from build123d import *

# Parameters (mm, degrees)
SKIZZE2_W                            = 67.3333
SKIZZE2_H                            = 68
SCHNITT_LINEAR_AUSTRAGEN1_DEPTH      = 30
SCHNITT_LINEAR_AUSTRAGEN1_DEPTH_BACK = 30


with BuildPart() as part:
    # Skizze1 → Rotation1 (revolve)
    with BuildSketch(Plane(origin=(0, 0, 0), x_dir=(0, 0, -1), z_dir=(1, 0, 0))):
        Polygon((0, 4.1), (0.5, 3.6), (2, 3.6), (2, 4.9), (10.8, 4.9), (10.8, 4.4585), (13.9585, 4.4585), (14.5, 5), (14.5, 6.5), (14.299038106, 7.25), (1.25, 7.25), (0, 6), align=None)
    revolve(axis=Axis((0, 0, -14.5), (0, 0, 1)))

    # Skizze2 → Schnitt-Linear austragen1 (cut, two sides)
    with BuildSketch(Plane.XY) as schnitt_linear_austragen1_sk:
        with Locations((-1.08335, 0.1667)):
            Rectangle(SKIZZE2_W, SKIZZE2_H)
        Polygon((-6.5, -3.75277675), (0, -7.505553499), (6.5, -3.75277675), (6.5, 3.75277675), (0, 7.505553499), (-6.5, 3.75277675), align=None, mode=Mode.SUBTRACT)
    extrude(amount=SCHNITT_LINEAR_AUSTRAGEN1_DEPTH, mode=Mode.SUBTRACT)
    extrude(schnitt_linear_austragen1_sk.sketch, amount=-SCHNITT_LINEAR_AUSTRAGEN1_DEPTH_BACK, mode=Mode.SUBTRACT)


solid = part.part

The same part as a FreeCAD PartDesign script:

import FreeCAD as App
import Part
import Sketcher
Q = App.Units.Quantity

doc = App.newDocument("Part")
body = doc.addObject("PartDesign::Body", "Body")

# Sketch on YZ plane
sketch1 = body.newObject("Sketcher::SketchObject", "Sketch")
sketch1.AttachmentSupport = (doc.getObject("YZ_Plane"), [""])
sketch1.MapMode = "FlatFace"
sketch1.addGeometry([
    Part.LineSegment(App.Vector(4.1, 0, 0), App.Vector(3.6, -0.5, 0)),  # 0
    Part.LineSegment(App.Vector(3.6, -0.5, 0), App.Vector(3.6, -2, 0)),  # 1
    Part.LineSegment(App.Vector(3.6, -2, 0), App.Vector(4.9, -2, 0)),  # 2
    Part.LineSegment(App.Vector(4.9, -2, 0), App.Vector(4.9, -10.8, 0)),  # 3
    Part.LineSegment(App.Vector(4.9, -10.8, 0), App.Vector(4.46, -10.8, 0)),  # 4
    Part.LineSegment(App.Vector(4.46, -10.8, 0), App.Vector(4.46, -13.96, 0)),  # 5
    Part.LineSegment(App.Vector(4.46, -13.96, 0), App.Vector(5, -14.5, 0)),  # 6
    Part.LineSegment(App.Vector(5, -14.5, 0), App.Vector(6.5, -14.5, 0)),  # 7
    Part.LineSegment(App.Vector(6.5, -14.5, 0), App.Vector(7.25, -14.3, 0)),  # 8
    Part.LineSegment(App.Vector(7.25, -14.3, 0), App.Vector(7.25, -1.25, 0)),  # 9
    Part.LineSegment(App.Vector(7.25, -1.25, 0), App.Vector(6, 0, 0)),  # 10
    Part.LineSegment(App.Vector(6, 0, 0), App.Vector(4.1, 0, 0)),  # 11
], False)
sketch1.addConstraint([
    Sketcher.Constraint("Coincident", 0, 2, 1, 1),
    Sketcher.Constraint("Coincident", 1, 2, 2, 1),
    Sketcher.Constraint("Coincident", 2, 2, 3, 1),
    Sketcher.Constraint("Coincident", 3, 2, 4, 1),
    Sketcher.Constraint("Coincident", 4, 2, 5, 1),
    Sketcher.Constraint("Coincident", 5, 2, 6, 1),
    Sketcher.Constraint("Coincident", 6, 2, 7, 1),
    Sketcher.Constraint("Coincident", 7, 2, 8, 1),
    Sketcher.Constraint("Coincident", 8, 2, 9, 1),
    Sketcher.Constraint("Coincident", 9, 2, 10, 1),
    Sketcher.Constraint("Coincident", 10, 2, 11, 1),
    Sketcher.Constraint("Coincident", 11, 2, 0, 1),
    Sketcher.Constraint("Vertical", 1),
    Sketcher.Constraint("Horizontal", 2),
    Sketcher.Constraint("Vertical", 3),
    Sketcher.Constraint("Horizontal", 4),
    Sketcher.Constraint("Vertical", 5),
    Sketcher.Constraint("Horizontal", 7),
    Sketcher.Constraint("Vertical", 9),
    Sketcher.Constraint("Horizontal", 11),
    Sketcher.Constraint("PointOnObject", 10, 2, -1),
    Sketcher.Constraint("Perpendicular", 0, 6),
    Sketcher.Constraint("Parallel", 6, 10),
    Sketcher.Constraint("Equal", 7, 1),
    Sketcher.Constraint("Angle", 0, Q("-135 deg")),
    Sketcher.Constraint("Angle", 8, Q("15 deg")),
    Sketcher.Constraint("DistanceX", 2, 1, 2, 2, 1.3),
    Sketcher.Constraint("DistanceX", 7, 1, 7, 2, 1.5),
    Sketcher.Constraint("DistanceX", 11, 2, 11, 1, 1.9),
    Sketcher.Constraint("DistanceY", 3, 2, 3, 1, 8.8),
    Sketcher.Constraint("DistanceY", 1, 2, -1, 1, 2.0),
    Sketcher.Constraint("DistanceX", -1, 1, 6, 2, 5.0),
    Sketcher.Constraint("DistanceX", -1, 1, 10, 2, 6.0),
    Sketcher.Constraint("DistanceY", 6, 2, -1, 1, 14.5),
    Sketcher.Constraint("DistanceX", -1, 1, 8, 2, 7.25),
    Sketcher.Constraint("DistanceX", 4, 2, 4, 1, 0.4415),
])
revolution = body.newObject("PartDesign::Revolution", "Revolution")
revolution.Profile = sketch1
revolution.ReferenceAxis = (sketch1, ["V_Axis"])
revolution.Angle = 360

# Sketch on XY plane
sketch2 = body.newObject("Sketcher::SketchObject", "Sketch001")
sketch2.AttachmentSupport = (doc.getObject("XY_Plane"), [""])
sketch2.MapMode = "FlatFace"
sketch2.addGeometry([
    Part.LineSegment(App.Vector(-35, 34, 0), App.Vector(-35, -34, 0)),  # 0
    Part.LineSegment(App.Vector(-35, -34, 0), App.Vector(33, -34, 0)),  # 1
    Part.LineSegment(App.Vector(33, -34, 0), App.Vector(33, 34, 0)),  # 2
    Part.LineSegment(App.Vector(33, 34, 0), App.Vector(-35, 34, 0)),  # 3
    Part.LineSegment(App.Vector(0, -8, 0), App.Vector(-6, -4, 0)),  # 4
    Part.LineSegment(App.Vector(-6, -4, 0), App.Vector(-6, 4, 0)),  # 5
    Part.LineSegment(App.Vector(-6, 4, 0), App.Vector(0, 8, 0)),  # 6
    Part.LineSegment(App.Vector(0, 8, 0), App.Vector(6, 4, 0)),  # 7
    Part.LineSegment(App.Vector(6, 4, 0), App.Vector(6, -4, 0)),  # 8
    Part.LineSegment(App.Vector(6, -4, 0), App.Vector(0, -8, 0)),  # 9
], False)
sketch2.addConstraint([
    Sketcher.Constraint("Coincident", 0, 2, 1, 1),
    Sketcher.Constraint("Coincident", 1, 2, 2, 1),
    Sketcher.Constraint("Coincident", 2, 2, 3, 1),
    Sketcher.Constraint("Coincident", 3, 2, 0, 1),
    Sketcher.Constraint("Coincident", 4, 2, 5, 1),
    Sketcher.Constraint("Coincident", 5, 2, 6, 1),
    Sketcher.Constraint("Coincident", 6, 2, 7, 1),
    Sketcher.Constraint("Coincident", 7, 2, 8, 1),
    Sketcher.Constraint("Coincident", 8, 2, 9, 1),
    Sketcher.Constraint("Coincident", 9, 2, 4, 1),
    Sketcher.Constraint("Vertical", 0),
    Sketcher.Constraint("Horizontal", 1),
    Sketcher.Constraint("Vertical", 2),
    Sketcher.Constraint("Horizontal", 3),
    Sketcher.Constraint("Vertical", 5),
    Sketcher.Constraint("Vertical", 8),
    Sketcher.Constraint("Symmetric", 4, 2, 7, 2, -1, 1),
    Sketcher.Constraint("Symmetric", 6, 2, 9, 2, -1, 1),
    Sketcher.Constraint("PointOnObject", 6, 2, -2),
    Sketcher.Constraint("Parallel", 6, 9),
    Sketcher.Constraint("Horizontal", 5, 2, 7, 2),
    Sketcher.Constraint("DistanceY", 0, 2, 0, 1, 68.0),
    Sketcher.Constraint("Angle", 4, Q("150 deg")),
    Sketcher.Constraint("DistanceX", 5, 2, 7, 2, 13.0),
    Sketcher.Constraint("DistanceX", 0, 2, -1, 1, 34.75),
    Sketcher.Constraint("DistanceX", 1, 1, 1, 2, 67.3333),
    Sketcher.Constraint("DistanceY", 0, 2, -1, 1, 33.8333),
    Sketcher.Constraint("DistanceY", 5, 1, 5, 2, 7.505554),
])
pocket1 = body.newObject("PartDesign::Pocket", "Pocket")
pocket1.Profile = sketch2
pocket1.Type = "ThroughAll"
pocket1.Midplane = True

doc.recompute()
